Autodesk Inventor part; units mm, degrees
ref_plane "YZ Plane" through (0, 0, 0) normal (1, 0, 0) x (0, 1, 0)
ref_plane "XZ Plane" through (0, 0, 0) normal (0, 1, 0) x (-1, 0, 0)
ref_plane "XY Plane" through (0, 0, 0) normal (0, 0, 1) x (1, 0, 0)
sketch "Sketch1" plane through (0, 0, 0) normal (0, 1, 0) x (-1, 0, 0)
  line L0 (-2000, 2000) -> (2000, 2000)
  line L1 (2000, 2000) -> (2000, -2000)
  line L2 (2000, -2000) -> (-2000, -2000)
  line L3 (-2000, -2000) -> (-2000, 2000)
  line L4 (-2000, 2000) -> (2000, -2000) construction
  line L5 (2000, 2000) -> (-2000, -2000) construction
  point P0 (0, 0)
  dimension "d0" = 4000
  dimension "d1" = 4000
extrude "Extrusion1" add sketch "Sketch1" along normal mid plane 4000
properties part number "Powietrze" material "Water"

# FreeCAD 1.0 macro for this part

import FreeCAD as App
import Part
import Sketcher
from FreeCAD import Vector
Q = App.Units.Quantity

doc = App.newDocument("Part")
body = doc.addObject("PartDesign::Body", "Body")

# Sketch on XZ plane
sketch1 = body.newObject("Sketcher::SketchObject", "Sketch")
sketch1.AttachmentSupport = (doc.getObject("XZ_Plane"), [""])
sketch1.MapMode = "FlatFace"
sketch1.addGeometry(Part.LineSegment(Vector(-2000, 2000, 0), Vector(2000, 2000, 0)), False)
sketch1.addGeometry(Part.LineSegment(Vector(2000, 2000, 0), Vector(2000, -2000, 0)), False)
sketch1.addGeometry(Part.LineSegment(Vector(2000, -2000, 0), Vector(-2000, -2000, 0)), False)
sketch1.addGeometry(Part.LineSegment(Vector(-2000, -2000, 0), Vector(-2000, 2000, 0)), False)
sketch1.addConstraint(Sketcher.Constraint("Coincident", 0, 2, 1, 1))
sketch1.addConstraint(Sketcher.Constraint("Coincident", 1, 2, 2, 1))
sketch1.addConstraint(Sketcher.Constraint("Coincident", 2, 2, 3, 1))
sketch1.addConstraint(Sketcher.Constraint("Coincident", 3, 2, 0, 1))
sketch1.addConstraint(Sketcher.Constraint("Horizontal", 0))
sketch1.addConstraint(Sketcher.Constraint("Vertical", 1))
sketch1.addConstraint(Sketcher.Constraint("Horizontal", 2))
sketch1.addConstraint(Sketcher.Constraint("Vertical", 3))
sketch1.addConstraint(Sketcher.Constraint("Symmetric", 0, 2, 2, 2, -1, 1))
sketch1.addConstraint(Sketcher.Constraint("Equal", 2, 1))
sketch1.addConstraint(Sketcher.Constraint("DistanceX", 0, 1, 0, 2, Q("4000 mm")))
pad1 = body.newObject("PartDesign::Pad", "Pad")
pad1.Profile = sketch1
pad1.Length = 4000
pad1.Midplane = True

doc.recompute()
